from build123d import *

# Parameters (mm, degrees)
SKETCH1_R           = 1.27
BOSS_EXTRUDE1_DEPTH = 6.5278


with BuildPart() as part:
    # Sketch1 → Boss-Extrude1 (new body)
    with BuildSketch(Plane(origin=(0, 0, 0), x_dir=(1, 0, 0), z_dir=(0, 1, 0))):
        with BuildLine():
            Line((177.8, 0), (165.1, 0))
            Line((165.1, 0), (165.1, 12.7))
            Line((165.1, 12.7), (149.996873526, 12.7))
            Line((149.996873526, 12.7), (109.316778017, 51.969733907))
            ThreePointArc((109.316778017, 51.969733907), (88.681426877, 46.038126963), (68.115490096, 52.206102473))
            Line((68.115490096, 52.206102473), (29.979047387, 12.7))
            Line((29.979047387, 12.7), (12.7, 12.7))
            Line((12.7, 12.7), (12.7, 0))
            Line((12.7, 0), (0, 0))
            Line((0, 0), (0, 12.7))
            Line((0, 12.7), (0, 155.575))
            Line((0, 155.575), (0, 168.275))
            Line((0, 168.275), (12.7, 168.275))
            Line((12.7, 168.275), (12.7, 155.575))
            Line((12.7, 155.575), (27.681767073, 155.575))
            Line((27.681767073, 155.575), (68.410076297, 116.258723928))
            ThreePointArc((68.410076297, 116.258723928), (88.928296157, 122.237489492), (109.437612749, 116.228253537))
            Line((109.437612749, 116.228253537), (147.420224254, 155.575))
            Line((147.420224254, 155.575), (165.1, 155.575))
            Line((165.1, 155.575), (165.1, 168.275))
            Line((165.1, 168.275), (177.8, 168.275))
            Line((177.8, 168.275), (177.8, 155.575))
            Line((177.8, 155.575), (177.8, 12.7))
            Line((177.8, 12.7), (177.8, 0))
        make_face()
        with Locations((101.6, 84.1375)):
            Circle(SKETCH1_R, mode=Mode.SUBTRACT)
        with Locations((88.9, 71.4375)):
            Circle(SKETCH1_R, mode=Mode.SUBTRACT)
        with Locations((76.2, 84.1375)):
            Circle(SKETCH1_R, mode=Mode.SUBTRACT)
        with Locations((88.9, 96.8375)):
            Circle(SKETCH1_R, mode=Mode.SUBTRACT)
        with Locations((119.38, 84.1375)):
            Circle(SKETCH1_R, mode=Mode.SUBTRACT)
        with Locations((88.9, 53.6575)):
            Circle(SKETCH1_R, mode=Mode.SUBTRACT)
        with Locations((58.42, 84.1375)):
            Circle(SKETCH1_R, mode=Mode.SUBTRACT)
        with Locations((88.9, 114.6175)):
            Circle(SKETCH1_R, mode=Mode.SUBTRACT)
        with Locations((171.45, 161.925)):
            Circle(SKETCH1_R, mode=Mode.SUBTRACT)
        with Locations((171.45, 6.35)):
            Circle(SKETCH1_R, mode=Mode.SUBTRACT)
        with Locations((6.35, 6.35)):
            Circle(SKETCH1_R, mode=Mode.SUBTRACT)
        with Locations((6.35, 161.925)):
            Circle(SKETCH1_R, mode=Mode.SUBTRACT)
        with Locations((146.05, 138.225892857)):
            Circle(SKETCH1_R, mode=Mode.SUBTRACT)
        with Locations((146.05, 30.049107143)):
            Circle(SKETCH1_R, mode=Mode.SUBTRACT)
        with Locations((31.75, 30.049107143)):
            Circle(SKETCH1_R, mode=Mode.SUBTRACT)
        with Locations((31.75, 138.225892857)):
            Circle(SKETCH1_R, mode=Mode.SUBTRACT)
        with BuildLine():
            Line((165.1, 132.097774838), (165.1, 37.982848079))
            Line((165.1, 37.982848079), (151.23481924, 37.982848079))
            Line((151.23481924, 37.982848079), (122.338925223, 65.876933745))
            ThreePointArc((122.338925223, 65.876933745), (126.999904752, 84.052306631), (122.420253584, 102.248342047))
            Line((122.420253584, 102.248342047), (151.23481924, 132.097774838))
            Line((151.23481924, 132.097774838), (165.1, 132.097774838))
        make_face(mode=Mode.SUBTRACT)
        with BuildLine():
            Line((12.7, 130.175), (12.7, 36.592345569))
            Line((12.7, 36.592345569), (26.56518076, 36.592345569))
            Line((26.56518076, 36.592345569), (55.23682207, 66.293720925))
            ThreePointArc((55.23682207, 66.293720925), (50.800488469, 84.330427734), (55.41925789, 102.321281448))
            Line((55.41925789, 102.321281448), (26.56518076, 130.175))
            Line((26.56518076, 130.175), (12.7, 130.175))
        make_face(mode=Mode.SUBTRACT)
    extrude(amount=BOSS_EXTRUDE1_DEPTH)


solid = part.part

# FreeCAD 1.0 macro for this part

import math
import FreeCAD as App
import Part
import Sketcher

V = App.Vector
Q = App.Units.Quantity

doc = App.newDocument("Part")
body = doc.addObject("PartDesign::Body", "Body")

sketch1 = body.newObject("Sketcher::SketchObject", "Sketch")
sketch1.AttachmentSupport = (doc.getObject("XZ_Plane"), [""])
sketch1.MapMode = "FlatFace"
sketch1.addGeometry(Part.LineSegment(V(165.1, 0, 0), V(177.8, 0, 0)), False)
sketch1.addGeometry(Part.LineSegment(V(177.8, 0, 0), V(177.8, -168.275, 0)), False)
sketch1.addGeometry(Part.LineSegment(V(177.8, -168.275, 0), V(165.1, -168.275, 0)), False)
sketch1.addGeometry(Part.LineSegment(V(165.1, -168.275, 0), V(165.1, -155.575, 0)), False)
sketch1.addGeometry(Part.LineSegment(V(165.1, -155.575, 0), V(147.420224, -155.575, 0)), False)
sketch1.addGeometry(Part.LineSegment(V(147.420224, -155.575, 0), V(109.437613, -116.228254, 0)), False)
sketch1.addGeometry(Part.ArcOfCircle(Part.Circle(V(88.9, -84.1375, 0), V(0, 0, 1), 38.1), math.radians(-122.533543), math.radians(-57.381352)), False)
sketch1.addGeometry(Part.LineSegment(V(68.410076, -116.258724, 0), V(27.681767, -155.575, 0)), False)
sketch1.addGeometry(Part.LineSegment(V(27.681767, -155.575, 0), V(12.7, -155.575, 0)), False)
sketch1.addGeometry(Part.LineSegment(V(12.7, -155.575, 0), V(12.7, -168.275, 0)), False)
sketch1.addGeometry(Part.LineSegment(V(12.7, -168.275, 0), V(0, -168.275, 0)), False)
sketch1.addGeometry(Part.LineSegment(V(0, -168.275, 0), V(0, 0, 0)), False)
sketch1.addGeometry(Part.LineSegment(V(0, 0, 0), V(12.7, 0, 0)), False)
sketch1.addGeometry(Part.LineSegment(V(12.7, 0, 0), V(12.7, -12.7, 0)), False)
sketch1.addGeometry(Part.LineSegment(V(12.7, -12.7, 0), V(29.979047, -12.7, 0)), False)
sketch1.addGeometry(Part.LineSegment(V(29.979047, -12.7, 0), V(68.11549, -52.206102, 0)), False)
sketch1.addGeometry(Part.ArcOfCircle(Part.Circle(V(88.9, -84.1375, 0), V(0, 0, 1), 38.1), math.radians(57.596835), math.radians(123.060561)), False)
sketch1.addGeometry(Part.LineSegment(V(109.316778, -51.969734, 0), V(149.996874, -12.7, 0)), False)
sketch1.addGeometry(Part.LineSegment(V(149.996874, -12.7, 0), V(165.1, -12.7, 0)), False)
sketch1.addGeometry(Part.LineSegment(V(165.1, -12.7, 0), V(165.1, 0, 0)), False)
sketch1.addGeometry(Part.Circle(V(171.45, -6.35, 0), V(0, 0, 1), 1.27), False)
sketch1.addGeometry(Part.Circle(V(146.05, -30.049107, 0), V(0, 0, 1), 1.27), False)
sketch1.addGeometry(Part.Circle(V(6.35, -6.35, 0), V(0, 0, 1), 1.27), False)
sketch1.addGeometry(Part.Circle(V(31.75, -30.049107, 0), V(0, 0, 1), 1.27), False)
sketch1.addGeometry(Part.Circle(V(88.9, -53.6575, 0), V(0, 0, 1), 1.27), False)
sketch1.addGeometry(Part.Circle(V(88.9, -71.4375, 0), V(0, 0, 1), 1.27), False)
sketch1.addGeometry(Part.LineSegment(V(12.7, -130.175, 0), V(26.565181, -130.175, 0)), False)
sketch1.addGeometry(Part.LineSegment(V(26.565181, -130.175, 0), V(55.419258, -102.321281, 0)), False)
sketch1.addGeometry(Part.ArcOfCircle(Part.Circle(V(88.9, -84.1375, 0), V(0, 0, 1), 38.1), math.radians(152.073361), math.radians(208.506901)), False)
sketch1.addGeometry(Part.LineSegment(V(55.236822, -66.293721, 0), V(26.565181, -36.592346, 0)), False)
sketch1.addGeometry(Part.LineSegment(V(26.565181, -36.592346, 0), V(12.7, -36.592346, 0)), False)
sketch1.addGeometry(Part.LineSegment(V(12.7, -36.592346, 0), V(12.7, -130.175, 0)), False)
sketch1.addGeometry(Part.LineSegment(V(165.1, -132.097775, 0), V(165.1, -37.982848, 0)), False)
sketch1.addGeometry(Part.LineSegment(V(165.1, -37.982848, 0), V(151.234819, -37.982848, 0)), False)
sketch1.addGeometry(Part.LineSegment(V(151.234819, -37.982848, 0), V(122.338925, -65.876934, 0)), False)
sketch1.addGeometry(Part.ArcOfCircle(Part.Circle(V(88.9, -84.1375, 0), V(0, 0, 1), 38.1), math.radians(-28.382153), math.radians(28.638385)), False)
sketch1.addGeometry(Part.LineSegment(V(122.420254, -102.248342, 0), V(151.234819, -132.097775, 0)), False)
sketch1.addGeometry(Part.LineSegment(V(151.234819, -132.097775, 0), V(165.1, -132.097775, 0)), False)
sketch1.addGeometry(Part.Circle(V(119.38, -84.1375, 0), V(0, 0, 1), 1.27), False)
sketch1.addGeometry(Part.Circle(V(101.6, -84.1375, 0), V(0, 0, 1), 1.27), False)
sketch1.addGeometry(Part.Circle(V(146.05, -138.225893, 0), V(0, 0, 1), 1.27), False)
sketch1.addGeometry(Part.Circle(V(171.45, -161.925, 0), V(0, 0, 1), 1.27), False)
sketch1.addGeometry(Part.Circle(V(76.2, -84.1375, 0), V(0, 0, 1), 1.27), False)
sketch1.addGeometry(Part.Circle(V(88.9, -96.8375, 0), V(0, 0, 1), 1.27), False)
sketch1.addGeometry(Part.Circle(V(58.42, -84.1375, 0), V(0, 0, 1), 1.27), False)
sketch1.addGeometry(Part.Circle(V(88.9, -114.6175, 0), V(0, 0, 1), 1.27), False)
sketch1.addGeometry(Part.Circle(V(31.75, -138.225893, 0), V(0, 0, 1), 1.27), False)
sketch1.addGeometry(Part.Circle(V(6.35, -161.925, 0), V(0, 0, 1), 1.27), False)
sketch1.addConstraint(Sketcher.Constraint("Coincident", 0, 2, 1, 1))
sketch1.addConstraint(Sketcher.Constraint("Coincident", 1, 2, 2, 1))
sketch1.addConstraint(Sketcher.Constraint("Coincident", 2, 2, 3, 1))
sketch1.addConstraint(Sketcher.Constraint("Coincident", 3, 2, 4, 1))
sketch1.addConstraint(Sketcher.Constraint("Coincident", 4, 2, 5, 1))
sketch1.addConstraint(Sketcher.Constraint("Coincident", 5, 2, 6, 2))
sketch1.addConstraint(Sketcher.Constraint("Coincident", 6, 1, 7, 1))
sketch1.addConstraint(Sketcher.Constraint("Coincident", 7, 2, 8, 1))
sketch1.addConstraint(Sketcher.Constraint("Coincident", 8, 2, 9, 1))
sketch1.addConstraint(Sketcher.Constraint("Coincident", 9, 2, 10, 1))
sketch1.addConstraint(Sketcher.Constraint("Coincident", 10, 2, 11, 1))
sketch1.addConstraint(Sketcher.Constraint("Coincident", 11, 2, 12, 1))
sketch1.addConstraint(Sketcher.Constraint("Coincident", 12, 2, 13, 1))
sketch1.addConstraint(Sketcher.Constraint("Coincident", 13, 2, 14, 1))
sketch1.addConstraint(Sketcher.Constraint("Coincident", 14, 2, 15, 1))
sketch1.addConstraint(Sketcher.Constraint("Coincident", 15, 2, 16, 2))
sketch1.addConstraint(Sketcher.Constraint("Coincident", 16, 1, 17, 1))
sketch1.addConstraint(Sketcher.Constraint("Coincident", 17, 2, 18, 1))
sketch1.addConstraint(Sketcher.Constraint("Coincident", 18, 2, 19, 1))
sketch1.addConstraint(Sketcher.Constraint("Coincident", 19, 2, 0, 1))
sketch1.addConstraint(Sketcher.Constraint("Coincident", 26, 2, 27, 1))
sketch1.addConstraint(Sketcher.Constraint("Coincident", 27, 2, 28, 2))
sketch1.addConstraint(Sketcher.Constraint("Coincident", 28, 1, 29, 1))
sketch1.addConstraint(Sketcher.Constraint("Coincident", 29, 2, 30, 1))
sketch1.addConstraint(Sketcher.Constraint("Coincident", 30, 2, 31, 1))
sketch1.addConstraint(Sketcher.Constraint("Coincident", 31, 2, 26, 1))
sketch1.addConstraint(Sketcher.Constraint("Coincident", 32, 2, 33, 1))
sketch1.addConstraint(Sketcher.Constraint("Coincident", 33, 2, 34, 1))
sketch1.addConstraint(Sketcher.Constraint("Coincident", 34, 2, 35, 2))
sketch1.addConstraint(Sketcher.Constraint("Coincident", 35, 1, 36, 1))
sketch1.addConstraint(Sketcher.Constraint("Coincident", 36, 2, 37, 1))
sketch1.addConstraint(Sketcher.Constraint("Coincident", 37, 2, 32, 1))
sketch1.addConstraint(Sketcher.Constraint("Horizontal", 0))
sketch1.addConstraint(Sketcher.Constraint("Vertical", 1))
sketch1.addConstraint(Sketcher.Constraint("Horizontal", 2))
sketch1.addConstraint(Sketcher.Constraint("Vertical", 3))
sketch1.addConstraint(Sketcher.Constraint("Horizontal", 4))
sketch1.addConstraint(Sketcher.Constraint("Horizontal", 8))
sketch1.addConstraint(Sketcher.Constraint("Vertical", 9))
sketch1.addConstraint(Sketcher.Constraint("Horizontal", 10))
sketch1.addConstraint(Sketcher.Constraint("Vertical", 11))
sketch1.addConstraint(Sketcher.Constraint("Horizontal", 12))
sketch1.addConstraint(Sketcher.Constraint("Vertical", 13))
sketch1.addConstraint(Sketcher.Constraint("Horizontal", 14))
sketch1.addConstraint(Sketcher.Constraint("Horizontal", 18))
sketch1.addConstraint(Sketcher.Constraint("Vertical", 19))
sketch1.addConstraint(Sketcher.Constraint("Horizontal", 26))
sketch1.addConstraint(Sketcher.Constraint("Horizontal", 30))
sketch1.addConstraint(Sketcher.Constraint("Vertical", 31))
sketch1.addConstraint(Sketcher.Constraint("Vertical", 32))
sketch1.addConstraint(Sketcher.Constraint("Horizontal", 33))
sketch1.addConstraint(Sketcher.Constraint("Horizontal", 37))
sketch1.addConstraint(Sketcher.Constraint("Coincident", 11, 2, -1, 1))
sketch1.addConstraint(Sketcher.Constraint("Coincident", 16, 3, 6, 3))
sketch1.addConstraint(Sketcher.Constraint("Coincident", 28, 3, 6, 3))
sketch1.addConstraint(Sketcher.Constraint("Coincident", 35, 3, 6, 3))
sketch1.addConstraint(Sketcher.Constraint("Equal", 6, 16))
sketch1.addConstraint(Sketcher.Constraint("Equal", 20, 21))
sketch1.addConstraint(Sketcher.Constraint("Equal", 21, 22))
sketch1.addConstraint(Sketcher.Constraint("Equal", 22, 23))
sketch1.addConstraint(Sketcher.Constraint("Equal", 23, 24))
sketch1.addConstraint(Sketcher.Constraint("Equal", 24, 25))
sketch1.addConstraint(Sketcher.Constraint("Equal", 16, 28))
sketch1.addConstraint(Sketcher.Constraint("Equal", 28, 35))
sketch1.addConstraint(Sketcher.Constraint("Equal", 25, 38))
sketch1.addConstraint(Sketcher.Constraint("Equal", 38, 39))
sketch1.addConstraint(Sketcher.Constraint("Equal", 39, 40))
sketch1.addConstraint(Sketcher.Constraint("Equal", 40, 41))
sketch1.addConstraint(Sketcher.Constraint("Equal", 41, 42))
sketch1.addConstraint(Sketcher.Constraint("Equal", 42, 43))
sketch1.addConstraint(Sketcher.Constraint("Equal", 43, 44))
sketch1.addConstraint(Sketcher.Constraint("Equal", 44, 45))
sketch1.addConstraint(Sketcher.Constraint("Equal", 45, 46))
sketch1.addConstraint(Sketcher.Constraint("Equal", 46, 47))
sketch1.addConstraint(Sketcher.Constraint("PointOnObject", 0, 2, -1))
sketch1.addConstraint(Sketcher.Constraint("Perpendicular", 5, 7))
sketch1.addConstraint(Sketcher.Constraint("Perpendicular", 7, 15))
sketch1.addConstraint(Sketcher.Constraint("Perpendicular", 15, 17))
sketch1.addConstraint(Sketcher.Constraint("Parallel", 17, 27))
sketch1.addConstraint(Sketcher.Constraint("Perpendicular", 27, 29))
sketch1.addConstraint(Sketcher.Constraint("Perpendicular", 29, 34))
sketch1.addConstraint(Sketcher.Constraint("Perpendicular", 34, 36))
sketch1.addConstraint(Sketcher.Constraint("Horizontal", 20, 3, 22, 3))
sketch1.addConstraint(Sketcher.Constraint("Horizontal", 21, 3, 23, 3))
sketch1.addConstraint(Sketcher.Constraint("Horizontal", 35, 3, 38, 3))
sketch1.addConstraint(Sketcher.Constraint("Horizontal", 38, 3, 39, 3))
sketch1.addConstraint(Sketcher.Constraint("Horizontal", 39, 3, 42, 3))
sketch1.addConstraint(Sketcher.Constraint("Horizontal", 42, 3, 44, 3))
sketch1.addConstraint(Sketcher.Constraint("Horizontal", 40, 3, 46, 3))
sketch1.addConstraint(Sketcher.Constraint("Horizontal", 41, 3, 47, 3))
sketch1.addConstraint(Sketcher.Constraint("Horizontal", 4, 2, 7, 2))
sketch1.addConstraint(Sketcher.Constraint("Horizontal", 2, 2, 9, 2))
sketch1.addConstraint(Sketcher.Constraint("Horizontal", 14, 2, 17, 2))
sketch1.addConstraint(Sketcher.Constraint("Vertical", 16, 3, 24, 3))
sketch1.addConstraint(Sketcher.Constraint("Vertical", 24, 3, 25, 3))
sketch1.addConstraint(Sketcher.Constraint("Vertical", 21, 3, 40, 3))
sketch1.addConstraint(Sketcher.Constraint("Vertical", 20, 3, 41, 3))
sketch1.addConstraint(Sketcher.Constraint("Vertical", 35, 3, 43, 3))
sketch1.addConstraint(Sketcher.Constraint("Vertical", 43, 3, 45, 3))
sketch1.addConstraint(Sketcher.Constraint("Vertical", 23, 3, 46, 3))
sketch1.addConstraint(Sketcher.Constraint("Vertical", 22, 3, 47, 3))
sketch1.addConstraint(Sketcher.Constraint("Vertical", 9, 2, 12, 2))
sketch1.addConstraint(Sketcher.Constraint("Vertical", 3, 2, 18, 2))
sketch1.addConstraint(Sketcher.Constraint("Vertical", 26, 2, 29, 2))
sketch1.addConstraint(Sketcher.Constraint("Vertical", 13, 2, 30, 2))
sketch1.addConstraint(Sketcher.Constraint("Vertical", 19, 2, 32, 2))
sketch1.addConstraint(Sketcher.Constraint("Vertical", 33, 2, 36, 2))
sketch1.addConstraint(Sketcher.Constraint("Equal", 2, 10))
sketch1.addConstraint(Sketcher.Constraint("Equal", 30, 33))
sketch1.addConstraint(Sketcher.Constraint("Equal", 12, 3))
sketch1.addConstraint(Sketcher.Constraint("Equal", 9, 13))
sketch1.addConstraint(Sketcher.Constraint("Diameter", 20, Q("0.1 in")))
sketch1.addConstraint(Sketcher.Constraint("Radius", 6, Q("1.5 in")))
sketch1.addConstraint(Sketcher.Constraint("DistanceX", 0, 1, 0, 2, Q("0.5 in")))
sketch1.addConstraint(Sketcher.Constraint("DistanceX", -1, 1, 39, 3, Q("4 in")))
sketch1.addConstraint(Sketcher.Constraint("DistanceX", -1, 1, 42, 3, Q("3 in")))
sketch1.addConstraint(Sketcher.Constraint("DistanceX", -1, 1, 0, 2, Q("7 in")))
sketch1.addConstraint(Sketcher.Constraint("DistanceX", 21, 3, 20, 3, Q("1 in")))
sketch1.addConstraint(Sketcher.Constraint("DistanceX", 22, 3, 23, 3, Q("1 in")))
sketch1.addConstraint(Sketcher.Constraint("DistanceX", 45, 3, 2, 2, Q("3 in")))
sketch1.addConstraint(Sketcher.Constraint("DistanceY", 7, 2, 26, 2, Q("1 in")))
sketch1.addConstraint(Sketcher.Constraint("DistanceX", -1, 1, 38, 3, Q("4.7 in")))
sketch1.addConstraint(Sketcher.Constraint("DistanceX", -1, 1, 44, 3, Q("2.3 in")))
sketch1.addConstraint(Sketcher.Constraint("DistanceX", 22, 3, 21, 3, Q("5.5 in")))
sketch1.addConstraint(Sketcher.Constraint("DistanceY", 6, 3, 24, 3, Q("1.2 in")))
sketch1.addConstraint(Sketcher.Constraint("DistanceY", 6, 3, 25, 3, Q("0.5 in")))
sketch1.addConstraint(Sketcher.Constraint("DistanceY", 43, 3, 35, 3, Q("0.5 in")))
sketch1.addConstraint(Sketcher.Constraint("DistanceY", 45, 3, 43, 3, Q("0.7 in")))
sketch1.addConstraint(Sketcher.Constraint("DistanceY", 1, 2, 1, 1, Q("6.625 in")))
sketch1.addConstraint(Sketcher.Constraint("DistanceX", -1, 1, 20, 3, Q("6.75 in")))
sketch1.addConstraint(Sketcher.Constraint("DistanceY", 20, 3, -1, 1, Q("0.25 in")))
sketch1.addConstraint(Sketcher.Constraint("DistanceY", 1, 2, 41, 3, Q("0.25 in")))
sketch1.addConstraint(Sketcher.Constraint("DistanceY", 6, 3, -1, 1, Q("3.3125 in")))
sketch1.addConstraint(Sketcher.Constraint("DistanceX", 26, 1, 26, 2, Q("13.865181 mm")))
sketch1.addConstraint(Sketcher.Constraint("DistanceY", 34, 2, 16, 1, Q("13.9072 mm")))
sketch1.addConstraint(Sketcher.Constraint("Distance", 5, Q("54.688621 mm")))
sketch1.addConstraint(Sketcher.Constraint("Distance", 15, Q("54.910112 mm")))
sketch1.addConstraint(Sketcher.Constraint("DistanceX", 4, 2, 4, 1, Q("17.679776 mm")))
sketch1.addConstraint(Sketcher.Constraint("DistanceX", 8, 2, 8, 1, Q("14.981767 mm")))
sketch1.addConstraint(Sketcher.Constraint("DistanceX", 18, 1, 18, 2, Q("15.103126 mm")))
sketch1.addConstraint(Sketcher.Constraint("DistanceY", 31, 2, 31, 1, Q("93.582654 mm")))
sketch1.addConstraint(Sketcher.Constraint("DistanceY", 32, 1, 32, 2, Q("94.114927 mm")))
sketch1.addConstraint(Sketcher.Constraint("DistanceY", 29, 2, 23, 3, Q("6.543238 mm")))
sketch1.addConstraint(Sketcher.Constraint("DistanceY", 40, 3, 36, 2, Q("6.128118 mm")))
pad1 = body.newObject("PartDesign::Pad", "Pad")
pad1.Profile = sketch1
pad1.Length = Q("0.257 in")
pad1.Reversed = True

doc.recompute()
